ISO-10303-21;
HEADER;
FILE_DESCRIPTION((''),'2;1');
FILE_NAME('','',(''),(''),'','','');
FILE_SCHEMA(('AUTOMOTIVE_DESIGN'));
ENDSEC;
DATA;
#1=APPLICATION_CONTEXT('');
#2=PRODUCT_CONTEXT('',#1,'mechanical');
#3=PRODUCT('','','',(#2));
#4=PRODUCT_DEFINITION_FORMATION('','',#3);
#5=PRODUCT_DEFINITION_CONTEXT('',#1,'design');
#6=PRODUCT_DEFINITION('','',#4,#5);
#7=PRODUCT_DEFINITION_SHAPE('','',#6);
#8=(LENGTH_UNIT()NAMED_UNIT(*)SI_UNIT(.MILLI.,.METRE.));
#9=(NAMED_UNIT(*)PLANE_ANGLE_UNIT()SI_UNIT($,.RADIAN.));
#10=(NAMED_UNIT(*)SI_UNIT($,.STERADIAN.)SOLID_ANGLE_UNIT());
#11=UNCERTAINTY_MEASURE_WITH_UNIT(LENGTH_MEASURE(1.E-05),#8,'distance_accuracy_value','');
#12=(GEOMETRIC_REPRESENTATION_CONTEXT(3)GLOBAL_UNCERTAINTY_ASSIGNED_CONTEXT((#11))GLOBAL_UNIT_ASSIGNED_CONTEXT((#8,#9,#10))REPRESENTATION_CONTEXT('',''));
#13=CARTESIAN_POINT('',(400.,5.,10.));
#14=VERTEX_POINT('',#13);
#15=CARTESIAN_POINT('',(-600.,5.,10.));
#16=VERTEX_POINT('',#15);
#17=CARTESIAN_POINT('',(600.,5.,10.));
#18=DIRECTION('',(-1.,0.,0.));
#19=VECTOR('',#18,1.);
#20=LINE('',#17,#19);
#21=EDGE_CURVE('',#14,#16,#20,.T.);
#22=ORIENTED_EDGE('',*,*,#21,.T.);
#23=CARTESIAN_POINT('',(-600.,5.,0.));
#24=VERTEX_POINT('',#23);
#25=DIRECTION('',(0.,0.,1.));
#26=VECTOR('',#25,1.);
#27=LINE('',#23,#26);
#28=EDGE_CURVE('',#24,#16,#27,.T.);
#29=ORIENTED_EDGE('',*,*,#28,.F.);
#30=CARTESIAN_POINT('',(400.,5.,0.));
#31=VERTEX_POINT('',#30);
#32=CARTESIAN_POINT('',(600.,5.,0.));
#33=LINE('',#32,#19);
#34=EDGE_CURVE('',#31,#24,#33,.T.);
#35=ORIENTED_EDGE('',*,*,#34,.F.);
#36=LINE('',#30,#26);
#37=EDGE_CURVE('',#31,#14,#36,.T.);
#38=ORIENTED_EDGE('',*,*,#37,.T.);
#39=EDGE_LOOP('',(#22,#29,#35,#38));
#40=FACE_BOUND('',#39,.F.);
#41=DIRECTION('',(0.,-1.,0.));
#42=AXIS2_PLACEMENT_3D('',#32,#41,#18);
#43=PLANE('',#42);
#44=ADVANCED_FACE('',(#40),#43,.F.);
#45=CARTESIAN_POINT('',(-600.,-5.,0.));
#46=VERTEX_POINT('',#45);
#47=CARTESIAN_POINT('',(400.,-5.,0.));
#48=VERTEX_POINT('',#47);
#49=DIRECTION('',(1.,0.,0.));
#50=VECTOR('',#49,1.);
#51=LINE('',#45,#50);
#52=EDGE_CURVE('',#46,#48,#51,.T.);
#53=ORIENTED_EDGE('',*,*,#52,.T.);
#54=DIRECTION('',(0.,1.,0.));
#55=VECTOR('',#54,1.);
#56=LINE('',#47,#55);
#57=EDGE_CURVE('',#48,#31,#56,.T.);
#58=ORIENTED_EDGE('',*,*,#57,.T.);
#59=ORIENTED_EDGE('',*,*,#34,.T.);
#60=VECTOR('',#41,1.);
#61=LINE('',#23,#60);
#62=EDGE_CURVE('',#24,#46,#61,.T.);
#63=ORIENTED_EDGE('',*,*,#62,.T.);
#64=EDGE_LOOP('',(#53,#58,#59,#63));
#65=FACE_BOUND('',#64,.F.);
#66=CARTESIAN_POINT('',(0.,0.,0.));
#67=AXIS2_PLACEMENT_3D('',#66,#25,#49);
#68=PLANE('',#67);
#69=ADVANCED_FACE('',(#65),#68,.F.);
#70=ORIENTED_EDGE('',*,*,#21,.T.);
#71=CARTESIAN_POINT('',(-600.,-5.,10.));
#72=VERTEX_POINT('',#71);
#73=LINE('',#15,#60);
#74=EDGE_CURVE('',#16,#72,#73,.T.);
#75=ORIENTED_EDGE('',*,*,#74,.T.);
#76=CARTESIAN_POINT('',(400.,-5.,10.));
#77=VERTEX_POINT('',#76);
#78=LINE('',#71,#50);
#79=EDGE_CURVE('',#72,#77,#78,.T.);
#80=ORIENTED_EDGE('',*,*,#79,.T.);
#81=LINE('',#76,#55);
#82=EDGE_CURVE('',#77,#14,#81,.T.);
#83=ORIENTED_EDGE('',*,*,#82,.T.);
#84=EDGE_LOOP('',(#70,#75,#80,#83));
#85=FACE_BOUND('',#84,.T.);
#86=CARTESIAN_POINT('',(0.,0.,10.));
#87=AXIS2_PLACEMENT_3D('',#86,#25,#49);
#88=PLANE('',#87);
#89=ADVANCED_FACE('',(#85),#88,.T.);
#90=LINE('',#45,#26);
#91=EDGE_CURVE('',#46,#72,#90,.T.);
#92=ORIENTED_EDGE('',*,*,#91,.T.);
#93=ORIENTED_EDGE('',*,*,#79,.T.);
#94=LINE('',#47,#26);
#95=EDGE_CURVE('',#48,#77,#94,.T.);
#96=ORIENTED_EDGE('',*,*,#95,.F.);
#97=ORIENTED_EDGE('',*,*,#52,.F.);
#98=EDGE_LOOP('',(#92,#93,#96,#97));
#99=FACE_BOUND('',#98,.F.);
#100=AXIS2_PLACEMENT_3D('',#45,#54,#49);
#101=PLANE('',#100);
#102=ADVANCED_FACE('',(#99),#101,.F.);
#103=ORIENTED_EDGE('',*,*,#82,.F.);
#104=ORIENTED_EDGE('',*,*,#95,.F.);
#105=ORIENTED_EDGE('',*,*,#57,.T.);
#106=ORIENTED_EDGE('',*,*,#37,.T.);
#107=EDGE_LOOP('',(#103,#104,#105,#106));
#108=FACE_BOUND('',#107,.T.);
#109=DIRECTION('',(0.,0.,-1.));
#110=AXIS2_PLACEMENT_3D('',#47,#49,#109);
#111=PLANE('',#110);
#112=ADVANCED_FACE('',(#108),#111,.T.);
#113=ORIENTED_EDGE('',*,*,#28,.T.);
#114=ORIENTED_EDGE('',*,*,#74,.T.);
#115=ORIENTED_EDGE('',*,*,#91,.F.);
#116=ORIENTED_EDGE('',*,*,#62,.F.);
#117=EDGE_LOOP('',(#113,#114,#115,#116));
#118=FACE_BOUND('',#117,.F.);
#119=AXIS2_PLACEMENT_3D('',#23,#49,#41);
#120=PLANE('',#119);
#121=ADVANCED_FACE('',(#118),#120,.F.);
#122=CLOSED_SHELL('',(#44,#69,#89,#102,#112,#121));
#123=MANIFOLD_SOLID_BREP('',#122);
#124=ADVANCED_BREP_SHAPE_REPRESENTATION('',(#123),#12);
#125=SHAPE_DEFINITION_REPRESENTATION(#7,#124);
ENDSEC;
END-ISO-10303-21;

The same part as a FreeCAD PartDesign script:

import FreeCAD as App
import Part
import Sketcher
Q = App.Units.Quantity


def add_polygon(sketch, points):
    """Adds a closed chain of lines whose ends are joined by coincident constraints."""
    first, n = sketch.GeometryCount, len(points)
    for a, b in zip(points, points[1:] + points[:1]):
        sketch.addGeometry(Part.LineSegment(App.Vector(*a, 0), App.Vector(*b, 0)), False)
    for i in range(n):
        sketch.addConstraint(Sketcher.Constraint("Coincident", first + i, 2, first + (i + 1) % n, 1))

doc = App.newDocument("Part")
body = doc.addObject("PartDesign::Body", "Body")

sketch1 = doc.addObject("Sketcher::SketchObject", "Sketch")
body.addObject(sketch1)
sketch1.AttachmentSupport = (doc.XY_Plane, [""])
sketch1.MapMode = "FlatFace"
add_polygon(sketch1, [(600, -5), (600, 5), (-600, 5), (-600, -5)])
sketch1.addConstraint(Sketcher.Constraint("Vertical", 0))
sketch1.addConstraint(Sketcher.Constraint("Horizontal", 1))
sketch1.addConstraint(Sketcher.Constraint("Vertical", 2))
sketch1.addConstraint(Sketcher.Constraint("Horizontal", 3))
sketch1.addConstraint(Sketcher.Constraint("Symmetric", 0, 2, 2, 2, -1, 1))
sketch1.addConstraint(Sketcher.Constraint("DistanceX", 1, 2, 1, 1, Q("1200 mm")))
sketch1.addConstraint(Sketcher.Constraint("DistanceY", 0, 1, 0, 2, Q("10 mm")))
pad1 = doc.addObject("PartDesign::Pad", "Pad")
body.addObject(pad1)
pad1.Profile = sketch1
pad1.Length = 10

sketch2 = doc.addObject("Sketcher::SketchObject", "Sketch001")
body.addObject(sketch2)
sketch2.AttachmentSupport = (doc.YZ_Plane, [""])
sketch2.MapMode = "FlatFace"
sketch2.AttachmentOffset = App.Placement(App.Vector(0, 0, 600), App.Rotation())
add_polygon(sketch2, [(-5, 10), (-5, 0), (5, 0), (5, 10)])
sketch2.addConstraint(Sketcher.Constraint("Vertical", 0))
sketch2.addConstraint(Sketcher.Constraint("Horizontal", 1))
sketch2.addConstraint(Sketcher.Constraint("Vertical", 2))
sketch2.addConstraint(Sketcher.Constraint("Horizontal", 3))
sketch2.addConstraint(Sketcher.Constraint("Symmetric", 0, 2, 1, 2, -1, 1))
sketch2.addConstraint(Sketcher.Constraint("Equal", 3, 0))
sketch2.addConstraint(Sketcher.Constraint("DistanceX", 1, 1, 1, 2, Q("10 mm")))
pocket1 = doc.addObject("PartDesign::Pocket", "Pocket")
body.addObject(pocket1)
pocket1.Profile = sketch2
pocket1.Length = 200

doc.recompute()
